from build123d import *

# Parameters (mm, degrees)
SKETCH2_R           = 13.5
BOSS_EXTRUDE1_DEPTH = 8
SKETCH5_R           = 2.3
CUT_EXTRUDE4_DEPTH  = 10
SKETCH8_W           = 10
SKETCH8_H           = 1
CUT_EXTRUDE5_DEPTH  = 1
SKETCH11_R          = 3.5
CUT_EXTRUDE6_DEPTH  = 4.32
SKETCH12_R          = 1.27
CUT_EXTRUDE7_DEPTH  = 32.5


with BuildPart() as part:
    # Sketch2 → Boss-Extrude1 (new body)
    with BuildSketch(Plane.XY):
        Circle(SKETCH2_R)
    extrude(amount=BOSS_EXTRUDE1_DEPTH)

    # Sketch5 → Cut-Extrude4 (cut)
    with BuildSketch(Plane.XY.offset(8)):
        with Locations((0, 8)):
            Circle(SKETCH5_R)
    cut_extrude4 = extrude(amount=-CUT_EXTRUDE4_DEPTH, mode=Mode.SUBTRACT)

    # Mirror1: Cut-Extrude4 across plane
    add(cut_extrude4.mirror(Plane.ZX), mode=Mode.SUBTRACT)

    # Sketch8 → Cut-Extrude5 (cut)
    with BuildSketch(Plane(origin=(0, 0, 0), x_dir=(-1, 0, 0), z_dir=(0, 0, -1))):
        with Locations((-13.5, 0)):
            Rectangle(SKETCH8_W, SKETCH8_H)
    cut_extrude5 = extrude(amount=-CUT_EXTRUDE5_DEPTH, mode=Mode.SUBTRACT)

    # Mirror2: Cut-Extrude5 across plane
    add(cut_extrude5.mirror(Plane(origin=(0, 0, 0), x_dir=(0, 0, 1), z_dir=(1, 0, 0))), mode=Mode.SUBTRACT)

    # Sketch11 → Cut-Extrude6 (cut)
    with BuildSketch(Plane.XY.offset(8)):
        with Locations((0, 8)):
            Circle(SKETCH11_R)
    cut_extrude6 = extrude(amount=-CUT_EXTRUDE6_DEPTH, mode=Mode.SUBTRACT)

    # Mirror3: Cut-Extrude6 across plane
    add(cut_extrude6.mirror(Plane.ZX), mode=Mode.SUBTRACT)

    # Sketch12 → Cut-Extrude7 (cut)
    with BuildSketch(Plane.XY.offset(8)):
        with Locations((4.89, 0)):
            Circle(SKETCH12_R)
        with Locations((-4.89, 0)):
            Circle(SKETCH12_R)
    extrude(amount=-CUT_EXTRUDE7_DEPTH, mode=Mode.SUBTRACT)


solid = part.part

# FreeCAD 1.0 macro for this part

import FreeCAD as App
import Part
import Sketcher

V = App.Vector
Q = App.Units.Quantity

doc = App.newDocument("Part")
body = doc.addObject("PartDesign::Body", "Body")

sketch1 = doc.addObject("Sketcher::SketchObject", "Sketch")
body.addObject(sketch1)
sketch1.AttachmentSupport = (doc.XY_Plane, [""])
sketch1.MapMode = "FlatFace"
sketch1.addGeometry(Part.Circle(V(0, 0, 0), V(0, 0, 1), 13.5), False)
sketch1.addConstraint(Sketcher.Constraint("Coincident", 0, 3, -1, 1))
sketch1.addConstraint(Sketcher.Constraint("Diameter", 0, Q("27 mm")))
pad1 = doc.addObject("PartDesign::Pad", "Pad")
body.addObject(pad1)
pad1.Profile = sketch1
pad1.Length = 8

sketch2 = doc.addObject("Sketcher::SketchObject", "Sketch001")
body.addObject(sketch2)
sketch2.AttachmentSupport = (doc.XY_Plane, [""])
sketch2.MapMode = "FlatFace"
sketch2.AttachmentOffset = App.Placement(V(0, 0, 8), App.Rotation())
sketch2.addGeometry(Part.Circle(V(0, 8, 0), V(0, 0, 1), 2.3), False)
sketch2.addConstraint(Sketcher.Constraint("PointOnObject", 0, 3, -2))
sketch2.addConstraint(Sketcher.Constraint("Diameter", 0, Q("4.6 mm")))
sketch2.addConstraint(Sketcher.Constraint("DistanceY", -1, 1, 0, 3, Q("8 mm")))
pocket1 = doc.addObject("PartDesign::Pocket", "Pocket")
body.addObject(pocket1)
pocket1.Profile = sketch2
pocket1.Length = 10
doc.recompute()

mirrored = doc.addObject("PartDesign::Mirrored", "Mirrored")
body.addObject(mirrored)
mirrored.Originals = [pocket1]
mirrored.MirrorPlane = (doc.XZ_Plane, [""])
body.Tip = mirrored

sketch3 = doc.addObject("Sketcher::SketchObject", "Sketch002")
body.addObject(sketch3)
sketch3.AttachmentSupport = (doc.XY_Plane, [""])
sketch3.MapMode = "FlatFace"
sketch3.addGeometry(Part.LineSegment(V(18.5, 0.5, 0), V(18.5, -0.5, 0)), False)
sketch3.addGeometry(Part.LineSegment(V(18.5, -0.5, 0), V(8.5, -0.5, 0)), False)
sketch3.addGeometry(Part.LineSegment(V(8.5, -0.5, 0), V(8.5, 0.5, 0)), False)
sketch3.addGeometry(Part.LineSegment(V(8.5, 0.5, 0), V(18.5, 0.5, 0)), False)
sketch3.addConstraint(Sketcher.Constraint("Coincident", 0, 2, 1, 1))
sketch3.addConstraint(Sketcher.Constraint("Coincident", 1, 2, 2, 1))
sketch3.addConstraint(Sketcher.Constraint("Coincident", 2, 2, 3, 1))
sketch3.addConstraint(Sketcher.Constraint("Coincident", 3, 2, 0, 1))
sketch3.addConstraint(Sketcher.Constraint("Vertical", 0))
sketch3.addConstraint(Sketcher.Constraint("Horizontal", 1))
sketch3.addConstraint(Sketcher.Constraint("Vertical", 2))
sketch3.addConstraint(Sketcher.Constraint("Horizontal", 3))
sketch3.addConstraint(Sketcher.Constraint("DistanceX", 1, 2, 1, 1, Q("10 mm")))
sketch3.addConstraint(Sketcher.Constraint("DistanceY", 0, 2, 0, 1, Q("1 mm")))
sketch3.addConstraint(Sketcher.Constraint("DistanceX", -1, 1, 0, 2, Q("18.5 mm")))
sketch3.addConstraint(Sketcher.Constraint("DistanceY", 0, 2, -1, 1, Q("0.5 mm")))
pocket2 = doc.addObject("PartDesign::Pocket", "Pocket001")
body.addObject(pocket2)
pocket2.Profile = sketch3
pocket2.Length = 1
pocket2.Reversed = True
doc.recompute()

mirrored2 = doc.addObject("PartDesign::Mirrored", "Mirrored001")
body.addObject(mirrored2)
mirrored2.Originals = [pocket2]
mirrored2.MirrorPlane = (doc.YZ_Plane, [""])
body.Tip = mirrored2

sketch4 = doc.addObject("Sketcher::SketchObject", "Sketch003")
body.addObject(sketch4)
sketch4.AttachmentSupport = (doc.XY_Plane, [""])
sketch4.MapMode = "FlatFace"
sketch4.AttachmentOffset = App.Placement(V(0, 0, 8), App.Rotation())
sketch4.addGeometry(Part.Circle(V(0, 8, 0), V(0, 0, 1), 3.5), False)
sketch4.addConstraint(Sketcher.Constraint("PointOnObject", 0, 3, -2))
sketch4.addConstraint(Sketcher.Constraint("Diameter", 0, Q("7 mm")))
sketch4.addConstraint(Sketcher.Constraint("DistanceY", -1, 1, 0, 3, Q("8 mm")))
pocket3 = doc.addObject("PartDesign::Pocket", "Pocket002")
body.addObject(pocket3)
pocket3.Profile = sketch4
pocket3.Length = 4.32
doc.recompute()

mirrored3 = doc.addObject("PartDesign::Mirrored", "Mirrored002")
body.addObject(mirrored3)
mirrored3.Originals = [pocket3]
mirrored3.MirrorPlane = (doc.XZ_Plane, [""])
body.Tip = mirrored3

sketch5 = doc.addObject("Sketcher::SketchObject", "Sketch004")
body.addObject(sketch5)
sketch5.AttachmentSupport = (doc.XY_Plane, [""])
sketch5.MapMode = "FlatFace"
sketch5.AttachmentOffset = App.Placement(V(0, 0, 8), App.Rotation())
sketch5.addGeometry(Part.Circle(V(4.89, 0, 0), V(0, 0, 1), 1.27), False)
sketch5.addGeometry(Part.Circle(V(-4.89, 0, 0), V(0, 0, 1), 1.27), False)
sketch5.addConstraint(Sketcher.Constraint("Equal", 0, 1))
sketch5.addConstraint(Sketcher.Constraint("Symmetric", 0, 3, 1, 3, -1, 1))
sketch5.addConstraint(Sketcher.Constraint("PointOnObject", 0, 3, -1))
sketch5.addConstraint(Sketcher.Constraint("Diameter", 0, Q("2.54 mm")))
sketch5.addConstraint(Sketcher.Constraint("DistanceX", -1, 1, 0, 3, Q("4.89 mm")))
pocket4 = doc.addObject("PartDesign::Pocket", "Pocket003")
body.addObject(pocket4)
pocket4.Profile = sketch5
pocket4.Length = 32.5

doc.recompute()
